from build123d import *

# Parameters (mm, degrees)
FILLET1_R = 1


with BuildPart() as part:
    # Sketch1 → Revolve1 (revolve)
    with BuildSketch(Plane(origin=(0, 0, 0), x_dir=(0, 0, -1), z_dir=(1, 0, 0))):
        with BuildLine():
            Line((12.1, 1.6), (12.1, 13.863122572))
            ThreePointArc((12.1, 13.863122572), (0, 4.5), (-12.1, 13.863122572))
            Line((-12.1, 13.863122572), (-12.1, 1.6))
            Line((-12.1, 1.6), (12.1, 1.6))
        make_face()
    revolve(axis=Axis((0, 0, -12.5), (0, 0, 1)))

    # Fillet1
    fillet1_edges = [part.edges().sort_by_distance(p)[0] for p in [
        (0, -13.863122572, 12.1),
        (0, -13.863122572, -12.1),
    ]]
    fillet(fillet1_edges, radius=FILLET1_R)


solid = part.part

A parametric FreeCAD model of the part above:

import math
import FreeCAD as App
import Part
import Sketcher

V = App.Vector


def edges_at(feature, points):
    """Names of the edges that pass closest to the given points."""
    edges = feature.Shape.Edges
    near = lambda p: min(range(len(edges)), key=lambda i: edges[i].distToShape(Part.Vertex(*p))[0])
    return sorted({f"Edge{near(p) + 1}" for p in points})

doc = App.newDocument("Part")
body = doc.addObject("PartDesign::Body", "Body")

# Sketch on YZ plane
sketch1 = body.newObject("Sketcher::SketchObject", "Sketch")
sketch1.AttachmentSupport = (doc.getObject("YZ_Plane"), [""])
sketch1.MapMode = "FlatFace"
sketch1.addGeometry(Part.LineSegment(V(1.6, -12.1, 0), V(13.863123, -12.1, 0)), False)
sketch1.addGeometry(Part.ArcOfCircle(Part.Circle(V(17, 0, 0), V(0, 0, 1), 12.5), math.radians(104.533747), math.radians(255.466253)), False)
sketch1.addGeometry(Part.LineSegment(V(13.863123, 12.1, 0), V(1.6, 12.1, 0)), False)
sketch1.addGeometry(Part.LineSegment(V(1.6, 12.1, 0), V(1.6, -12.1, 0)), False)
sketch1.addConstraint(Sketcher.Constraint("Coincident", 0, 2, 1, 2))
sketch1.addConstraint(Sketcher.Constraint("Coincident", 1, 1, 2, 1))
sketch1.addConstraint(Sketcher.Constraint("Coincident", 2, 2, 3, 1))
sketch1.addConstraint(Sketcher.Constraint("Coincident", 3, 2, 0, 1))
sketch1.addConstraint(Sketcher.Constraint("Horizontal", 0))
sketch1.addConstraint(Sketcher.Constraint("Horizontal", 2))
sketch1.addConstraint(Sketcher.Constraint("Vertical", 3))
sketch1.addConstraint(Sketcher.Constraint("Symmetric", 0, 2, 1, 1, -1))
sketch1.addConstraint(Sketcher.Constraint("Radius", 1, 12.5))
sketch1.addConstraint(Sketcher.Constraint("DistanceY", 3, 2, 3, 1, 24.2))
sketch1.addConstraint(Sketcher.Constraint("DistanceX", -1, 1, 1, 3, 17.0))
sketch1.addConstraint(Sketcher.Constraint("DistanceX", -1, 1, 2, 2, 1.6))
revolution = body.newObject("PartDesign::Revolution", "Revolution")
revolution.Profile = sketch1
revolution.ReferenceAxis = (sketch1, ["V_Axis"])
revolution.Angle = 360
doc.recompute()

fillet = body.newObject("PartDesign::Fillet", "Fillet")
fillet.Base = (revolution, edges_at(revolution, [(0, -13.863, 12.1), (0, -13.863, -12.1)]))
fillet.Radius = 1

doc.recompute()
